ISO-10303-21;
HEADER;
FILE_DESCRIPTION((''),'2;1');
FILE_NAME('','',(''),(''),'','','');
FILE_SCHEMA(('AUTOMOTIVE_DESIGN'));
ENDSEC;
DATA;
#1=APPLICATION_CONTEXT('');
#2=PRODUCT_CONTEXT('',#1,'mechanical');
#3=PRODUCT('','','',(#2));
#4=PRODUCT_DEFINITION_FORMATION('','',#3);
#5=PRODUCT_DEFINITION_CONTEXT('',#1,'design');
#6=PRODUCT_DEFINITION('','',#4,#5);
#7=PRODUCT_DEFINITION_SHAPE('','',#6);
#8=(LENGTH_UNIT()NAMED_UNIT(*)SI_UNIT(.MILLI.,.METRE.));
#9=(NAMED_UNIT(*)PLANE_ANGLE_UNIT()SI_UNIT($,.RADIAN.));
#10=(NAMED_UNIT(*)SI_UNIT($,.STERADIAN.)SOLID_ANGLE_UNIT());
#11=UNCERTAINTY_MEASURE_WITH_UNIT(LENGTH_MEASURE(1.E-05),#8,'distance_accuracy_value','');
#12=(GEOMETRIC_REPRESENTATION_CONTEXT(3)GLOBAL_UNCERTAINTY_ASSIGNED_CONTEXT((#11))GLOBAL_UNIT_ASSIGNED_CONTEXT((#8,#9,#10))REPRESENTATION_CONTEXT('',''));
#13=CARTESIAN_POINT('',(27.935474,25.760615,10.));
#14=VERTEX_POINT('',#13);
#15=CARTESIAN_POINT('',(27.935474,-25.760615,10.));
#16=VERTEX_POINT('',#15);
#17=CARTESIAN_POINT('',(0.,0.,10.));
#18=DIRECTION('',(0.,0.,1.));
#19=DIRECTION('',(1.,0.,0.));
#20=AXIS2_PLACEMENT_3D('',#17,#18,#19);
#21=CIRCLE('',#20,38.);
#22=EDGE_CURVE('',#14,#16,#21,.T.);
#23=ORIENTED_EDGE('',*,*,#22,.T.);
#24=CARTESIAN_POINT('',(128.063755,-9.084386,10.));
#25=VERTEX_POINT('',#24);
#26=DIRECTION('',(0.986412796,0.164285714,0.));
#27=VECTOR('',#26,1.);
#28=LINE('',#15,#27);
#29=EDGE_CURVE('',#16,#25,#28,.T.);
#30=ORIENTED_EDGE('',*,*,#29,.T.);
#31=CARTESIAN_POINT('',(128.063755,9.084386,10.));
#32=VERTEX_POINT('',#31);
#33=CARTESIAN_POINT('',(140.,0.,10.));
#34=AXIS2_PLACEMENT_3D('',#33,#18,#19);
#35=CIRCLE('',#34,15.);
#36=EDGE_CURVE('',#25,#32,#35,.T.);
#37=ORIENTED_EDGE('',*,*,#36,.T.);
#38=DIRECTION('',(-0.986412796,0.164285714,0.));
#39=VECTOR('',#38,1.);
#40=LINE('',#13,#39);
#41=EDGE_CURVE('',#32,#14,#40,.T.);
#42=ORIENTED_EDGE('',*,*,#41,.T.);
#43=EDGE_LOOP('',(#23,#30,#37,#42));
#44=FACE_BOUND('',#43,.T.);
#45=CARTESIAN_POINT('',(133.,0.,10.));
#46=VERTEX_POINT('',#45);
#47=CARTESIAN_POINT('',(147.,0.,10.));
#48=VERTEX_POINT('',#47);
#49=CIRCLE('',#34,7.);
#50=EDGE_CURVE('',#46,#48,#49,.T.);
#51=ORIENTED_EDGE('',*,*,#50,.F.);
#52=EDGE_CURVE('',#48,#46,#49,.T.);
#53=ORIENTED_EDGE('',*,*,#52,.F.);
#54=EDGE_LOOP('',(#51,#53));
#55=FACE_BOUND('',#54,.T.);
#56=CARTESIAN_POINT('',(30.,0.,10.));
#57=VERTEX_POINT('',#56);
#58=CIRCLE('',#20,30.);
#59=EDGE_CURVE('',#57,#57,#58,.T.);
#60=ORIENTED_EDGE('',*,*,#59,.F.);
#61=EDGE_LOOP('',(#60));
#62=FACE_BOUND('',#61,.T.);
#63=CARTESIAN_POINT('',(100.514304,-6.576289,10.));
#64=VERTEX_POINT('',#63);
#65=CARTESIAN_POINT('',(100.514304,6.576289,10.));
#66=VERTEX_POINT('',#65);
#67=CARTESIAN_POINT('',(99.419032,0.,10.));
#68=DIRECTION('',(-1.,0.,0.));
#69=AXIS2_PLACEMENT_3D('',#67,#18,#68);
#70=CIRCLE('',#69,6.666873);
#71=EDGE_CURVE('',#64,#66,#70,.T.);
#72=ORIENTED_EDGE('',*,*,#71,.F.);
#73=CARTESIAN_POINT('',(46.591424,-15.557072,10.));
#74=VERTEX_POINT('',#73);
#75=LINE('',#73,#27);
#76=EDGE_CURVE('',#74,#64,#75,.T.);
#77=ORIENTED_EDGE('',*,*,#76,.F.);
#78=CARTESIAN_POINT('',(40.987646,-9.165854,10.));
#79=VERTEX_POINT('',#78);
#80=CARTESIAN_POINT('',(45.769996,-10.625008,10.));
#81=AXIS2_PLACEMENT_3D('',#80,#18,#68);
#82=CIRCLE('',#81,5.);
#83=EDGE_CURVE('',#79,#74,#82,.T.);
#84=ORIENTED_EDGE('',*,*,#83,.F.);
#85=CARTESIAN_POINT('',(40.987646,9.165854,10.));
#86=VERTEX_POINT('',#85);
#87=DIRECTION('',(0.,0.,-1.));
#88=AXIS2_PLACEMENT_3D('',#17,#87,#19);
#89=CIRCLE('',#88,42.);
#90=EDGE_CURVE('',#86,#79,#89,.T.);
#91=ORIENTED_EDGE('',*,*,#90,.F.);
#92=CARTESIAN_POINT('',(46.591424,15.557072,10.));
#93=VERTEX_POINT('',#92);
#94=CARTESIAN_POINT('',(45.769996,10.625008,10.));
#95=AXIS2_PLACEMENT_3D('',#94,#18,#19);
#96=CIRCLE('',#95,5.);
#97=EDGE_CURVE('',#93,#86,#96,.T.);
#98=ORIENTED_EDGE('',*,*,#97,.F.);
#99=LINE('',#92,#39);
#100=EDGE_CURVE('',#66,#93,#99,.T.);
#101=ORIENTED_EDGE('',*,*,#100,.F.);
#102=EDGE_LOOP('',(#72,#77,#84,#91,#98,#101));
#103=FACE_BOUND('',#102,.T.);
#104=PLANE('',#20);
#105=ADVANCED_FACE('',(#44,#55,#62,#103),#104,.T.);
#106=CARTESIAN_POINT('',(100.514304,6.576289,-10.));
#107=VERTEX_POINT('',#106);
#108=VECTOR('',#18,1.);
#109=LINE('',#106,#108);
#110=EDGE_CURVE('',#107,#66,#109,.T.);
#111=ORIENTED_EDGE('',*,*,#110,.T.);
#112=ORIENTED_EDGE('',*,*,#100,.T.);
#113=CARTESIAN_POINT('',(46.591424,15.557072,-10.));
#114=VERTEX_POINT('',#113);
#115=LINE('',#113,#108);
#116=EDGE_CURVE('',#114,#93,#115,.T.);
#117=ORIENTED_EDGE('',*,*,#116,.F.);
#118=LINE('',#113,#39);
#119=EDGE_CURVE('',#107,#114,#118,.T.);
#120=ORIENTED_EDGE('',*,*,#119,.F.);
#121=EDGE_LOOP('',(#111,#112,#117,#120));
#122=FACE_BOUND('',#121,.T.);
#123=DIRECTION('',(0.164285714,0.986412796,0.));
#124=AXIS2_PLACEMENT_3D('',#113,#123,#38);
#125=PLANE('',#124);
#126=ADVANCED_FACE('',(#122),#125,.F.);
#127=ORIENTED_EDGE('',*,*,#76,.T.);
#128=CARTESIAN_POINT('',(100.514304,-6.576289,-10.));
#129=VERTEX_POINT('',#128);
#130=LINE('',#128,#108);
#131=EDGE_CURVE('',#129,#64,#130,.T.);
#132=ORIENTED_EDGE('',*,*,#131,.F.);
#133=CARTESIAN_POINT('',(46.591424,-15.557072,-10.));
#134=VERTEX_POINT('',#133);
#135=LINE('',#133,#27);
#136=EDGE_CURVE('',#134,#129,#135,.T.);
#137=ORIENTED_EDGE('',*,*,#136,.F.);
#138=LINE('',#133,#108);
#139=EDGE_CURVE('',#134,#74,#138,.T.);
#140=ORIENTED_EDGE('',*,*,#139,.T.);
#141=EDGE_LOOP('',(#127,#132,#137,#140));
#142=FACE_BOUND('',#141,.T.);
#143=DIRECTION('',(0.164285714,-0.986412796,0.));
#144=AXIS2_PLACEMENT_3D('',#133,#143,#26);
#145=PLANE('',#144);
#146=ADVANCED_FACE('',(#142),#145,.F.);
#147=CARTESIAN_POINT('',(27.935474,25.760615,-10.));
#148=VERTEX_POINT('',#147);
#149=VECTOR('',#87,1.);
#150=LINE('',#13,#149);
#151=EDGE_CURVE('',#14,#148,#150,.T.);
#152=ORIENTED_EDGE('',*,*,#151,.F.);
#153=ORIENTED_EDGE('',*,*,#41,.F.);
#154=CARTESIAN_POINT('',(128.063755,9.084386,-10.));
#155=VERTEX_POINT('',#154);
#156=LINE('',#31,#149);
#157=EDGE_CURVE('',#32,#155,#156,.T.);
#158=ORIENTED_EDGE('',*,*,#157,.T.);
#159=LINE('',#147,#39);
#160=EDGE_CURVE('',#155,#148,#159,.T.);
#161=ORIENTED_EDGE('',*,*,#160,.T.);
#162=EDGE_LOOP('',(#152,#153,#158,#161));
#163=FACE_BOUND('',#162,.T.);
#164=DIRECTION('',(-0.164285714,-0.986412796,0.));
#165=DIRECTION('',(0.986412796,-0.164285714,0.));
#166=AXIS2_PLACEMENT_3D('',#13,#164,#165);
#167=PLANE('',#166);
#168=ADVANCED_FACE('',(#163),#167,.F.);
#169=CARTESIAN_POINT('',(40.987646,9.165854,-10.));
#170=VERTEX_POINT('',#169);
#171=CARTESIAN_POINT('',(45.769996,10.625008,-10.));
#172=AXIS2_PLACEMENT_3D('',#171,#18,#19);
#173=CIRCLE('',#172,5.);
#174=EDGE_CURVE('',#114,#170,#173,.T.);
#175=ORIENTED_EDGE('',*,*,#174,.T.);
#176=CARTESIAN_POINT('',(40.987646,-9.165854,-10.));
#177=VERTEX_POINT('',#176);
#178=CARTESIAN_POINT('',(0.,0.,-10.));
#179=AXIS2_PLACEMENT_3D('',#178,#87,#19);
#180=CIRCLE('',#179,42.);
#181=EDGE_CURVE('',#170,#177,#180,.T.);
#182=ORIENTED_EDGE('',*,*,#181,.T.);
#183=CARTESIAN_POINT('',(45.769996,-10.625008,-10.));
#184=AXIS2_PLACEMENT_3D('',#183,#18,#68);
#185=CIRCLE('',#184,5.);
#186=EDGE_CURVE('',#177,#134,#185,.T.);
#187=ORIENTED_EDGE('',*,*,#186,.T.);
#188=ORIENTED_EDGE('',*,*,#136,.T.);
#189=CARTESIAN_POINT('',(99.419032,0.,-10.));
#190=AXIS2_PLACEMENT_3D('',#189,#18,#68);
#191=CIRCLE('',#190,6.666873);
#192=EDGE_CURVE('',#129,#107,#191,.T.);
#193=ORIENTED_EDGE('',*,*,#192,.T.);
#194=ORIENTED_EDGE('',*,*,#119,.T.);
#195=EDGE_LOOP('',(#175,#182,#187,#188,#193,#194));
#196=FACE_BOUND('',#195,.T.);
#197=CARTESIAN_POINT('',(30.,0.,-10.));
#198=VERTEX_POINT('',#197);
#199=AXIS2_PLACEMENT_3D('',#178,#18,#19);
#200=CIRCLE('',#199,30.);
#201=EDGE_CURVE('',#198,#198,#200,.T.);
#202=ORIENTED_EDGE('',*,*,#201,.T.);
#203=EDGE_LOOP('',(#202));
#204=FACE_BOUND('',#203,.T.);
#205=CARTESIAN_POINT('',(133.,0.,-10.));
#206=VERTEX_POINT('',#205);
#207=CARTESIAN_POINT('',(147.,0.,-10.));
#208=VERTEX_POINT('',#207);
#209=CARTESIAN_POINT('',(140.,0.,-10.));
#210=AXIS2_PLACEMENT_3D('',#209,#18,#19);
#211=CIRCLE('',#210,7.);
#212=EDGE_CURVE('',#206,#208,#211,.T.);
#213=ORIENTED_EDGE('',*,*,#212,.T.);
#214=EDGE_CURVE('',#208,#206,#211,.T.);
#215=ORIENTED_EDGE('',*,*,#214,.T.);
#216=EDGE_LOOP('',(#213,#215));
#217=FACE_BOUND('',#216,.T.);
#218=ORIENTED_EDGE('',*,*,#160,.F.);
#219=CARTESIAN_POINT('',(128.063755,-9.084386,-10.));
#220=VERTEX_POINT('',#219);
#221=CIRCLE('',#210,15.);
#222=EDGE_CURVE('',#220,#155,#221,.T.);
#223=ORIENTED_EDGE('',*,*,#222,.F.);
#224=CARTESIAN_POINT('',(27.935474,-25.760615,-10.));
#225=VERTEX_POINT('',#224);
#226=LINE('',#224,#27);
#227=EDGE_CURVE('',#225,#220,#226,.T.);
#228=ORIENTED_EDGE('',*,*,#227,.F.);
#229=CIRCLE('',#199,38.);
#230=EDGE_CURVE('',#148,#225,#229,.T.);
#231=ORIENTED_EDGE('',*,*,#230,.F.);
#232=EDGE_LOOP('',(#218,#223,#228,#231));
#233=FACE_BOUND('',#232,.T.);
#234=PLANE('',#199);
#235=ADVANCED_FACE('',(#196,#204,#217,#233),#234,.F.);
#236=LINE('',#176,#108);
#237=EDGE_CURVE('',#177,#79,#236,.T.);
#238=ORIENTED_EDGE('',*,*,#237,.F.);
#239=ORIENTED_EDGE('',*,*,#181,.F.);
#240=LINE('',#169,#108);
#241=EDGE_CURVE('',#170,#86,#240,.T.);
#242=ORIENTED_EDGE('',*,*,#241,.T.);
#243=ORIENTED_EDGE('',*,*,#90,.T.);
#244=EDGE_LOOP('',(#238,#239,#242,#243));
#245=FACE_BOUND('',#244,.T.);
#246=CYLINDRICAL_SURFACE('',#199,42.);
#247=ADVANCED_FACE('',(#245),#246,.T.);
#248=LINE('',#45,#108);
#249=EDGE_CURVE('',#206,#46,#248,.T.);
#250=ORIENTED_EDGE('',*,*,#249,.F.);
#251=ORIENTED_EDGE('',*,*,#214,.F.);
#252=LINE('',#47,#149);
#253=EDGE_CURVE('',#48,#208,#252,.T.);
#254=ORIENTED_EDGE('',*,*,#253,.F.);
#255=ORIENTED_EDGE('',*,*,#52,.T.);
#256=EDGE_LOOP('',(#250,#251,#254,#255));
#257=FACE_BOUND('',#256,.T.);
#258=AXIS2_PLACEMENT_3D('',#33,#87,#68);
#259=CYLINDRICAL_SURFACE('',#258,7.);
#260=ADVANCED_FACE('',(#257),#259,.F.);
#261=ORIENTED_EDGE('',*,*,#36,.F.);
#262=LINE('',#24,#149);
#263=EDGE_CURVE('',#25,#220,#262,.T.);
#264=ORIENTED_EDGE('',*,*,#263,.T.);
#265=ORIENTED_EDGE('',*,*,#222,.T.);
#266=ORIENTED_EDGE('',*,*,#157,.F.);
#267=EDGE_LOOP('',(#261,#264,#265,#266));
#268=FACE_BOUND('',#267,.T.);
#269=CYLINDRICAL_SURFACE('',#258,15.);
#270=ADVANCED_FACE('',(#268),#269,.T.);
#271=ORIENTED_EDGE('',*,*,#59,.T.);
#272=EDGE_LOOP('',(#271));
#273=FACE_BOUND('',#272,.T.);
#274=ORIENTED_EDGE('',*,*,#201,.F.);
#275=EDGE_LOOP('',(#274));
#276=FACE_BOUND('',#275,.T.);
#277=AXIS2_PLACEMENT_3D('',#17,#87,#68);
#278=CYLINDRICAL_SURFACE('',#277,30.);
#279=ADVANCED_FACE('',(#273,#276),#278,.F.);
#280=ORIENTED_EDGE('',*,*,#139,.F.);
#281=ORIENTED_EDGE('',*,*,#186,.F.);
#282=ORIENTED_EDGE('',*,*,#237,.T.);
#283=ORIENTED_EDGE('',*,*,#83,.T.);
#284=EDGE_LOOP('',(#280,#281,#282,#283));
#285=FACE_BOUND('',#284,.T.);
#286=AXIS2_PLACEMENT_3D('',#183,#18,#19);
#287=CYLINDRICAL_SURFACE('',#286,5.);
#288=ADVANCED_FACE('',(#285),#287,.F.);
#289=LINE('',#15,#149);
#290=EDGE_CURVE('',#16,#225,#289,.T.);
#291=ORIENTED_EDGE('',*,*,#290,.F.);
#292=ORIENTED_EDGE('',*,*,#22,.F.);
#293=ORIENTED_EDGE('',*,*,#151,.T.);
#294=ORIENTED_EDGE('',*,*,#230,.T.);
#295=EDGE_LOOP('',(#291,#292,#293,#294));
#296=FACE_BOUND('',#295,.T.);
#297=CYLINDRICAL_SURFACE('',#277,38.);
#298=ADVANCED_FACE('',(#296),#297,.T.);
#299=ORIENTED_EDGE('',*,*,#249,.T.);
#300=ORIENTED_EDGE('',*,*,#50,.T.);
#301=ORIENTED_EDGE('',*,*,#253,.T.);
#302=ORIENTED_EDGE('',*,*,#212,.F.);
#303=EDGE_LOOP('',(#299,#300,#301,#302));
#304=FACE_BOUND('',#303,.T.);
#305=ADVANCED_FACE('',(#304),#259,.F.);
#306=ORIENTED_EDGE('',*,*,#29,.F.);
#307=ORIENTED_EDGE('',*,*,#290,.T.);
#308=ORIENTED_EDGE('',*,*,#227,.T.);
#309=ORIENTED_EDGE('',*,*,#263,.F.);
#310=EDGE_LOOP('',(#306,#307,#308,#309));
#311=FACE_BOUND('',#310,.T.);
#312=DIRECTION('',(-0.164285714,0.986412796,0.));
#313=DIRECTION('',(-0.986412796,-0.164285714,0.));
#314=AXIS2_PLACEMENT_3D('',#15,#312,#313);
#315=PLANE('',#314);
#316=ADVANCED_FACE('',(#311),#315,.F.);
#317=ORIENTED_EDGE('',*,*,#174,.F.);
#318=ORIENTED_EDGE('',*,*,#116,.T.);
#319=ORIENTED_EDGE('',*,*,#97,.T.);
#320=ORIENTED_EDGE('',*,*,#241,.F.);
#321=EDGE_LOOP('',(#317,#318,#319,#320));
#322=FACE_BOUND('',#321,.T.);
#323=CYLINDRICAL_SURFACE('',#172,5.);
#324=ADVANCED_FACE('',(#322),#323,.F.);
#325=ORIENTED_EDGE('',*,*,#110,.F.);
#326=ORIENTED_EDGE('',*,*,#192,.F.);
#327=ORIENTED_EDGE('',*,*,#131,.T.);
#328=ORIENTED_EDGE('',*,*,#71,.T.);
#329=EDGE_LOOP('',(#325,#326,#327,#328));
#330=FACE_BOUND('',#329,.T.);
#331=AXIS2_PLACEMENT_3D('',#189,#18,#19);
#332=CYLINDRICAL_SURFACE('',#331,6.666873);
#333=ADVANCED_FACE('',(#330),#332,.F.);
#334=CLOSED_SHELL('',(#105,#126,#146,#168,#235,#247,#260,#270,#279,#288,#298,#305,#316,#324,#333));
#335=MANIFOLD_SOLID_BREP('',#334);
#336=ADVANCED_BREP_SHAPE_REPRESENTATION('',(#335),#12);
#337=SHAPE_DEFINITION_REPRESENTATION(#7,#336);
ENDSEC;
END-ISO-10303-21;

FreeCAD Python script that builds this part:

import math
import FreeCAD as App
import Part
import Sketcher
from FreeCAD import Vector
Q = App.Units.Quantity

doc = App.newDocument("Part")
params = doc.addObject("Spreadsheet::Sheet", "Params")
for row, (alias, value) in enumerate([
    ("sketch1_diameter", "60 mm"),
    ("sketch1_diameter2", "14 mm"),
    ("sketch1_radius", "15 mm"),
    ("sketch1_radius2", "38 mm"),
    ("pad1_length", "20 mm"),
    ("sketch2_radius", "5 mm"),
    ("sketch2_radius2", "42 mm"),
    ("sketch2_radius3", "5 mm"),
], start=1):
    params.set(f"A{row}", alias)
    params.set(f"B{row}", "=" + value)
    params.setAlias(f"B{row}", alias)

body = doc.addObject("PartDesign::Body", "Body")

# Sketch on XY plane
sketch1 = doc.addObject("Sketcher::SketchObject", "Sketch")
body.addObject(sketch1)
sketch1.AttachmentSupport = (doc.XY_Plane, [""])
sketch1.MapMode = "FlatFace"
sketch1.addGeometry(Part.LineSegment(Vector(28, -26, 0), Vector(128, -9, 0)), False)
sketch1.addGeometry(Part.ArcOfCircle(Part.Circle(Vector(140, 0, 0), Vector(0, 0, 1), 15), math.radians(-143), math.radians(143)), False)
sketch1.addGeometry(Part.LineSegment(Vector(128, 9, 0), Vector(28, 26, 0)), False)
sketch1.addGeometry(Part.ArcOfCircle(Part.Circle(Vector(0, 0, 0), Vector(0, 0, 1), 38), math.radians(43), math.radians(317)), False)
sketch1.addGeometry(Part.Circle(Vector(0, 0, 0), Vector(0, 0, 1), 30), False)
sketch1.addGeometry(Part.Circle(Vector(140, 0, 0), Vector(0, 0, 1), 7), False)
sketch1.addConstraint(Sketcher.Constraint("Coincident", 0, 2, 1, 1))
sketch1.addConstraint(Sketcher.Constraint("Coincident", 1, 2, 2, 1))
sketch1.addConstraint(Sketcher.Constraint("Coincident", 2, 2, 3, 1))
sketch1.addConstraint(Sketcher.Constraint("Coincident", 3, 2, 0, 1))
sketch1.addConstraint(Sketcher.Constraint("Coincident", 3, 3, -1, 1))
sketch1.addConstraint(Sketcher.Constraint("Coincident", 4, 3, -1, 1))
sketch1.addConstraint(Sketcher.Constraint("Coincident", 5, 3, 1, 3))
sketch1.addConstraint(Sketcher.Constraint("Symmetric", 0, 2, 1, 2, -1))
sketch1.addConstraint(Sketcher.Constraint("Vertical", 2, 2, 3, 2))
sketch1.addConstraint(Sketcher.Constraint("Diameter", 4, Q("60 mm")))
sketch1.addConstraint(Sketcher.Constraint("Diameter", 5, Q("14 mm")))
sketch1.addConstraint(Sketcher.Constraint("Radius", 1, Q("15 mm")))
sketch1.addConstraint(Sketcher.Constraint("Radius", 3, Q("38 mm")))
sketch1.addConstraint(Sketcher.Constraint("DistanceX", -1, 1, 1, 3, Q("140 mm")))
sketch1.addConstraint(Sketcher.Constraint("DistanceY", 0, 2, 2, 2, Q("34.845001 mm")))
sketch1.addConstraint(Sketcher.Constraint("DistanceY", 0, 2, 1, 2, Q("18.168772 mm")))
sketch1.setExpression("Constraints[9]", "Params.sketch1_diameter")
sketch1.setExpression("Constraints[10]", "Params.sketch1_diameter2")
sketch1.setExpression("Constraints[11]", "Params.sketch1_radius")
sketch1.setExpression("Constraints[12]", "Params.sketch1_radius2")
pad1 = doc.addObject("PartDesign::Pad", "Pad")
body.addObject(pad1)
pad1.Profile = sketch1
pad1.setExpression("Length", "Params.pad1_length")
pad1.Midplane = True

# Sketch on XY plane
sketch2 = doc.addObject("Sketcher::SketchObject", "Sketch001")
body.addObject(sketch2)
sketch2.AttachmentSupport = (doc.XY_Plane, [""])
sketch2.MapMode = "FlatFace"
sketch2.AttachmentOffset = App.Placement(Vector(0, 0, 10), App.Rotation())
sketch2.addGeometry(Part.LineSegment(Vector(100.514304, 6.576289, 0), Vector(46.591424, 15.557072, 0)), False)
sketch2.addGeometry(Part.ArcOfCircle(Part.Circle(Vector(45.769996, 10.625008, 0), Vector(0, 0, 1), 5), math.radians(80.544257), math.radians(196.967596)), False)
sketch2.addGeometry(Part.ArcOfCircle(Part.Circle(Vector(0, 0, 0), Vector(0, 0, 1), 42), math.radians(-12.605364), math.radians(12.605364)), False)
sketch2.addGeometry(Part.ArcOfCircle(Part.Circle(Vector(45.769996, -10.625008, 0), Vector(0, 0, 1), 5), math.radians(163.032404), math.radians(279.455743)), False)
sketch2.addGeometry(Part.LineSegment(Vector(46.591424, -15.557072, 0), Vector(100.514304, -6.576289, 0)), False)
sketch2.addGeometry(Part.ArcOfCircle(Part.Circle(Vector(99.419032, 0, 0), Vector(0, 0, 1), 6.666873), math.radians(-80.544257), math.radians(80.544257)), False)
sketch2.addConstraint(Sketcher.Constraint("Coincident", 0, 2, 1, 1))
sketch2.addConstraint(Sketcher.Constraint("Coincident", 1, 2, 2, 2))
sketch2.addConstraint(Sketcher.Constraint("Coincident", 2, 1, 3, 1))
sketch2.addConstraint(Sketcher.Constraint("Coincident", 3, 2, 4, 1))
sketch2.addConstraint(Sketcher.Constraint("Coincident", 4, 2, 5, 1))
sketch2.addConstraint(Sketcher.Constraint("Coincident", 5, 2, 0, 1))
sketch2.addConstraint(Sketcher.Constraint("Coincident", 2, 3, -1, 1))
sketch2.addConstraint(Sketcher.Constraint("PointOnObject", 5, 3, -1))
sketch2.addConstraint(Sketcher.Constraint("Radius", 1, Q("5 mm")))
sketch2.addConstraint(Sketcher.Constraint("Radius", 2, Q("42 mm")))
sketch2.addConstraint(Sketcher.Constraint("Radius", 3, Q("5 mm")))
sketch2.addConstraint(Sketcher.Constraint("Radius", 5, Q("6.666873 mm")))
sketch2.addConstraint(Sketcher.Constraint("DistanceX", -1, 1, 5, 3, Q("99.419032 mm")))
sketch2.addConstraint(Sketcher.Constraint("DistanceY", -1, 1, 0, 2, Q("15.557072 mm")))
sketch2.addConstraint(Sketcher.Constraint("DistanceY", 3, 2, -1, 1, Q("15.557072 mm")))
sketch2.addConstraint(Sketcher.Constraint("DistanceY", 4, 2, -1, 1, Q("6.576289 mm")))
sketch2.addConstraint(Sketcher.Constraint("DistanceY", -1, 1, 5, 2, Q("6.576289 mm")))
sketch2.addConstraint(Sketcher.Constraint("DistanceX", 1, 3, 0, 2, Q("0.821429 mm")))
sketch2.addConstraint(Sketcher.Constraint("DistanceX", 3, 3, 0, 2, Q("0.821429 mm")))
sketch2.addConstraint(Sketcher.Constraint("DistanceY", 3, 3, 0, 2, Q("26.182079 mm")))
sketch2.addConstraint(Sketcher.Constraint("DistanceX", 1, 2, 1, 3, Q("4.78235 mm")))
sketch2.setExpression("Constraints[8]", "Params.sketch2_radius")
sketch2.setExpression("Constraints[9]", "Params.sketch2_radius2")
sketch2.setExpression("Constraints[10]", "Params.sketch2_radius3")
pocket1 = doc.addObject("PartDesign::Pocket", "Pocket")
body.addObject(pocket1)
pocket1.Profile = sketch2
pocket1.Type = "ThroughAll"

doc.recompute()
